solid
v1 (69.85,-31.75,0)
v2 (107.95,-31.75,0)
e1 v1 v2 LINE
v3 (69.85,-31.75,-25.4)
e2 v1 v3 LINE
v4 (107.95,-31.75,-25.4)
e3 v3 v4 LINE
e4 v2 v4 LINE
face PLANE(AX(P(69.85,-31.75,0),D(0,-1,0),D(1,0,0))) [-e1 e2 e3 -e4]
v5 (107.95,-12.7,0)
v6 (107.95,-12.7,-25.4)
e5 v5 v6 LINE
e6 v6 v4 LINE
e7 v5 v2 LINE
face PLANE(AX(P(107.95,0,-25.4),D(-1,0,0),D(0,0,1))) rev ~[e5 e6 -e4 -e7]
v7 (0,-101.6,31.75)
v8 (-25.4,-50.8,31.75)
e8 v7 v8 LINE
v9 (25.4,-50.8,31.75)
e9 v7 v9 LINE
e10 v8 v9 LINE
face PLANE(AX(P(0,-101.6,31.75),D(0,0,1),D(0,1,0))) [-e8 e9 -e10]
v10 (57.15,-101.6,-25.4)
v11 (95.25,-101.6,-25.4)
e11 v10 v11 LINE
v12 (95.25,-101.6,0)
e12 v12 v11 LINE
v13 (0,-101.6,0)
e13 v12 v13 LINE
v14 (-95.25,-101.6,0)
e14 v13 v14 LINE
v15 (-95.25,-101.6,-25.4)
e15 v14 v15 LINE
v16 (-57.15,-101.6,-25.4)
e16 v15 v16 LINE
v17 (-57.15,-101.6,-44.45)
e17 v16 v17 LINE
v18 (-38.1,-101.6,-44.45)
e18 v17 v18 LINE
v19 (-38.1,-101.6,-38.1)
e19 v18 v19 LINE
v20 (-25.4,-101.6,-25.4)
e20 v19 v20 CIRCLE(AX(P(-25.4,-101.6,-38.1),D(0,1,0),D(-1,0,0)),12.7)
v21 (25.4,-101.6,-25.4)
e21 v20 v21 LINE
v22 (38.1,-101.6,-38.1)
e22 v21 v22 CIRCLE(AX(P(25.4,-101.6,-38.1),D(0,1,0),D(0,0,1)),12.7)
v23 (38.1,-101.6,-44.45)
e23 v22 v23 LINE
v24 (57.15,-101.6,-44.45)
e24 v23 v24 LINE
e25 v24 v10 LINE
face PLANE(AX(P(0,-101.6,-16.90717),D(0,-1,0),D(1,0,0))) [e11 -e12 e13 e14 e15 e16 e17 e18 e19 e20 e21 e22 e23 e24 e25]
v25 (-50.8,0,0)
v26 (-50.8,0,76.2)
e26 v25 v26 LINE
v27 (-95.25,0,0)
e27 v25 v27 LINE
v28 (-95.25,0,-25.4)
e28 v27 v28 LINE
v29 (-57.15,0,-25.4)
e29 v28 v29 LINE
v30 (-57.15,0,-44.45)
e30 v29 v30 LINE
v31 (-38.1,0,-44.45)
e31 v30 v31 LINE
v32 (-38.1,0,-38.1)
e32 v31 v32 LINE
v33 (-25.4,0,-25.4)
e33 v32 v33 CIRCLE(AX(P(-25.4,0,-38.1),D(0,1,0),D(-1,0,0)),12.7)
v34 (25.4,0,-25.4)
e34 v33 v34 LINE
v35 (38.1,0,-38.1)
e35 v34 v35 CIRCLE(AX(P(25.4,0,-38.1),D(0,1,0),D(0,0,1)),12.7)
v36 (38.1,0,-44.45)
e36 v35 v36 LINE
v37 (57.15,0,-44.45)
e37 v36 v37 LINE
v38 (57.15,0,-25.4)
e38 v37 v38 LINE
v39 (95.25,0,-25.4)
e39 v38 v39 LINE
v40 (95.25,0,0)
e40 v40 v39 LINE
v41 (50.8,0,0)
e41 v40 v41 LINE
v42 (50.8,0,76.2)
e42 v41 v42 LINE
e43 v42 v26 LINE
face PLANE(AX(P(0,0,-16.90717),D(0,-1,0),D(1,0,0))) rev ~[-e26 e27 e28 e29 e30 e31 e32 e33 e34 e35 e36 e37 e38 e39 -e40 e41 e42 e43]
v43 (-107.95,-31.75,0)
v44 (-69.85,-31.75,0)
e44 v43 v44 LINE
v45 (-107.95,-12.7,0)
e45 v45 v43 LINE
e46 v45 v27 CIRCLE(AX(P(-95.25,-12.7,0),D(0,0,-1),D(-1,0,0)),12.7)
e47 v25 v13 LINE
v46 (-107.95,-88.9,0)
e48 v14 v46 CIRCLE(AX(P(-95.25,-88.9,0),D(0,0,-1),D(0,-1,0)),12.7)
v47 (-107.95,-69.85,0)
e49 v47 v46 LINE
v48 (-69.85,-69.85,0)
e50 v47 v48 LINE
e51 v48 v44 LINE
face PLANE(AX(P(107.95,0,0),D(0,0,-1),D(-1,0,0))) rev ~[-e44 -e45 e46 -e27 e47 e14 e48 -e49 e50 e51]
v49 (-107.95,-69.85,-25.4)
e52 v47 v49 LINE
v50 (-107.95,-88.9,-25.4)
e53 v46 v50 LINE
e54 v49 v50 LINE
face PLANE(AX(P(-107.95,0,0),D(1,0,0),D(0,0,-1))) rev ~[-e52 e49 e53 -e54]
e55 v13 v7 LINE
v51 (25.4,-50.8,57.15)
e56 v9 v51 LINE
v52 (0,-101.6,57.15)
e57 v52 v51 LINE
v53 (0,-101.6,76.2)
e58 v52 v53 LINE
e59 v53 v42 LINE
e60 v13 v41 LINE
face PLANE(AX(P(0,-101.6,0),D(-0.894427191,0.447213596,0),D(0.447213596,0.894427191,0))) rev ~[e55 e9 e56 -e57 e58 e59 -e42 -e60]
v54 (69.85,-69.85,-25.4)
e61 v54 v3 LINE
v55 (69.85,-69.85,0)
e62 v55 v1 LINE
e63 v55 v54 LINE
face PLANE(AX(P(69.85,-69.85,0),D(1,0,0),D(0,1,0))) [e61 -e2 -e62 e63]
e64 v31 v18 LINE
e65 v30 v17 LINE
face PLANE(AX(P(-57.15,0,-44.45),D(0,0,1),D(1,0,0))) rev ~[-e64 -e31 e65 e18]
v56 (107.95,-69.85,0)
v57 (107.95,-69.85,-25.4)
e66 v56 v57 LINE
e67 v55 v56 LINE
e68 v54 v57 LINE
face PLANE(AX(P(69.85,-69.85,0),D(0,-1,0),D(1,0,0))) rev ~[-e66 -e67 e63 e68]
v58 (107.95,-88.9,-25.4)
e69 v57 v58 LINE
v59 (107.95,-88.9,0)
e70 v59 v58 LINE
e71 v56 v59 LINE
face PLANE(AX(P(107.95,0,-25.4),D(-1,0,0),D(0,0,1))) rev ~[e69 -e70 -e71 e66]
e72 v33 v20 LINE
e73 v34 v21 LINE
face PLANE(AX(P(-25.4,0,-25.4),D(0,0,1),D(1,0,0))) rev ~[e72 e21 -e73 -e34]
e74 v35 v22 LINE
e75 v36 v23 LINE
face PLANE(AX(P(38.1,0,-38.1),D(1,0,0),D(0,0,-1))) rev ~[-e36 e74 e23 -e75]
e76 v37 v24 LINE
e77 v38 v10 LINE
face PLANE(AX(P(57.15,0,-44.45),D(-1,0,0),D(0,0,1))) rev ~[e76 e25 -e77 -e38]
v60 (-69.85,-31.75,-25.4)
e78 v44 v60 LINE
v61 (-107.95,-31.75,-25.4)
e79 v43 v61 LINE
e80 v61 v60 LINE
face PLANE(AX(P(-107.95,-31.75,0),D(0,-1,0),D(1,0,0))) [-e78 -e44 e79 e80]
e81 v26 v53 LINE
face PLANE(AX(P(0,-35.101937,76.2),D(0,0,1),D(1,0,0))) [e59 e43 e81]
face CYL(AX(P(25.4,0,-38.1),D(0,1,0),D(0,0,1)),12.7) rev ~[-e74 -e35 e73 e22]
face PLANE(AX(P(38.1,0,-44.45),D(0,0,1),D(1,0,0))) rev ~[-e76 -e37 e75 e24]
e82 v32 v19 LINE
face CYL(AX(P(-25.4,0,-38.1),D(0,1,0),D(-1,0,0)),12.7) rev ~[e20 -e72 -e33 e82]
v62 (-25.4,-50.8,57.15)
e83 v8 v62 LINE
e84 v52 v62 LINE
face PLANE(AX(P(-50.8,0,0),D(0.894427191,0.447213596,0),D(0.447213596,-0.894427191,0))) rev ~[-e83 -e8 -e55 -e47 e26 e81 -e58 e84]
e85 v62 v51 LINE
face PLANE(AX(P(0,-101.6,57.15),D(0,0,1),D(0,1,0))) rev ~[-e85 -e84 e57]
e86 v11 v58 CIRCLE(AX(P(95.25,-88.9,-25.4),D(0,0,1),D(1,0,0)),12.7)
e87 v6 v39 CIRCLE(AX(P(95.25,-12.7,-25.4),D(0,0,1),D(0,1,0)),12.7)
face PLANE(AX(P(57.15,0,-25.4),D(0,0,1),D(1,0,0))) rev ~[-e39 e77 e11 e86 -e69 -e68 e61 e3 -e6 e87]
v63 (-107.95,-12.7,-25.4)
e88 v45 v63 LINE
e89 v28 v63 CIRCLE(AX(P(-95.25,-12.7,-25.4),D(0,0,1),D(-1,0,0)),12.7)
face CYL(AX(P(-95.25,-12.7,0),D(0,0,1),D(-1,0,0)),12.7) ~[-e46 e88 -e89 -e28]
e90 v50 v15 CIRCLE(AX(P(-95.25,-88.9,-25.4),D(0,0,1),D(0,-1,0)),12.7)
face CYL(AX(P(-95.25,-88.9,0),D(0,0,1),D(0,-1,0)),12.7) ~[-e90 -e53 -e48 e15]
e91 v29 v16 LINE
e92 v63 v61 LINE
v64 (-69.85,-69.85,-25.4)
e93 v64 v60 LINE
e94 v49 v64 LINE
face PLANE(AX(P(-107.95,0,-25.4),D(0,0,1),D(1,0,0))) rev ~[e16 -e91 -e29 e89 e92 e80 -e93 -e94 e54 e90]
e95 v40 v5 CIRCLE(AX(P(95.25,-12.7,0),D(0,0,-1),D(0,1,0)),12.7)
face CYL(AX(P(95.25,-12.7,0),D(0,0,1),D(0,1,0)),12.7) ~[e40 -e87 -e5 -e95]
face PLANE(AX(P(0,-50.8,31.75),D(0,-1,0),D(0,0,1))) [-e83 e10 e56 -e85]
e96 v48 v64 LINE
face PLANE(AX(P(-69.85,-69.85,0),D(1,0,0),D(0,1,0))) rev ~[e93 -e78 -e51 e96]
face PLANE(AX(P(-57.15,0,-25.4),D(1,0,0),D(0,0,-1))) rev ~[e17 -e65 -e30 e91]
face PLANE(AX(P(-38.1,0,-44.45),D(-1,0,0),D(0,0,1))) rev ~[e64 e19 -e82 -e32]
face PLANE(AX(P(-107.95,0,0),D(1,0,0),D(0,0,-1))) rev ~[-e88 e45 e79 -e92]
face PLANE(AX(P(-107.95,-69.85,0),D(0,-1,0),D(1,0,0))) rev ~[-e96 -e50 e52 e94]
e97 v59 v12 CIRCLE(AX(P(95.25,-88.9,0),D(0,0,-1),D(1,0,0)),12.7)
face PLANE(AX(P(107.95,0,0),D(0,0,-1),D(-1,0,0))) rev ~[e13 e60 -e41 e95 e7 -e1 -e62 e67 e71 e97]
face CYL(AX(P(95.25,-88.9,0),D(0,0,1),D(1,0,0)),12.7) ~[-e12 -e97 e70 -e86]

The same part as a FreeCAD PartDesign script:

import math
import FreeCAD as App
import Part
import Sketcher
Q = App.Units.Quantity


def add_polygon(sketch, points):
    """Adds a closed chain of lines whose ends are joined by coincident constraints."""
    first, n = sketch.GeometryCount, len(points)
    for a, b in zip(points, points[1:] + points[:1]):
        sketch.addGeometry(Part.LineSegment(App.Vector(*a, 0), App.Vector(*b, 0)), False)
    for i in range(n):
        sketch.addConstraint(Sketcher.Constraint("Coincident", first + i, 2, first + (i + 1) % n, 1))

doc = App.newDocument("Part")
body = doc.addObject("PartDesign::Body", "Body")

sketch1 = doc.addObject("Sketcher::SketchObject", "Sketch")
body.addObject(sketch1)
sketch1.AttachmentSupport = (doc.XZ_Plane, [""])
sketch1.MapMode = "FlatFace"
sketch1.addGeometry([
    Part.LineSegment(App.Vector(108, 0, 0), App.Vector(-108, 0, 0)),
    Part.LineSegment(App.Vector(-108, 0, 0), App.Vector(-108, -25, 0)),
    Part.LineSegment(App.Vector(-108, -25, 0), App.Vector(-57, -25, 0)),
    Part.LineSegment(App.Vector(-57, -25, 0), App.Vector(-57, -44, 0)),
    Part.LineSegment(App.Vector(-57, -44, 0), App.Vector(-38, -44, 0)),
    Part.LineSegment(App.Vector(-38, -44, 0), App.Vector(-38, -38, 0)),
    Part.ArcOfCircle(Part.Circle(App.Vector(-25, -38, 0), App.Vector(0, 0, 1), 13), math.radians(90), math.radians(180)),
    Part.LineSegment(App.Vector(-25, -25, 0), App.Vector(25, -25, 0)),
    Part.ArcOfCircle(Part.Circle(App.Vector(25, -38, 0), App.Vector(0, 0, 1), 13), math.radians(0), math.radians(90)),
    Part.LineSegment(App.Vector(38, -38, 0), App.Vector(38, -44, 0)),
    Part.LineSegment(App.Vector(38, -44, 0), App.Vector(57, -44, 0)),
    Part.LineSegment(App.Vector(57, -44, 0), App.Vector(57, -25, 0)),
    Part.LineSegment(App.Vector(57, -25, 0), App.Vector(108, -25, 0)),
    Part.LineSegment(App.Vector(108, -25, 0), App.Vector(108, 0, 0)),
], False)
sketch1.addConstraint([
    Sketcher.Constraint("Coincident", 0, 2, 1, 1),
    Sketcher.Constraint("Coincident", 1, 2, 2, 1),
    Sketcher.Constraint("Coincident", 2, 2, 3, 1),
    Sketcher.Constraint("Coincident", 3, 2, 4, 1),
    Sketcher.Constraint("Coincident", 4, 2, 5, 1),
    Sketcher.Constraint("Tangent", 5, 2, 6, 2),
    Sketcher.Constraint("Tangent", 6, 1, 7, 1),
    Sketcher.Constraint("Tangent", 7, 2, 8, 2),
    Sketcher.Constraint("Tangent", 8, 1, 9, 1),
    Sketcher.Constraint("Coincident", 9, 2, 10, 1),
    Sketcher.Constraint("Coincident", 10, 2, 11, 1),
    Sketcher.Constraint("Coincident", 11, 2, 12, 1),
    Sketcher.Constraint("Coincident", 12, 2, 13, 1),
    Sketcher.Constraint("Coincident", 13, 2, 0, 1),
    Sketcher.Constraint("Horizontal", 0),
    Sketcher.Constraint("Vertical", 1),
    Sketcher.Constraint("Horizontal", 2),
    Sketcher.Constraint("Vertical", 3),
    Sketcher.Constraint("Horizontal", 4),
    Sketcher.Constraint("Vertical", 5),
    Sketcher.Constraint("Horizontal", 7),
    Sketcher.Constraint("Vertical", 9),
    Sketcher.Constraint("Horizontal", 10),
    Sketcher.Constraint("Vertical", 11),
    Sketcher.Constraint("Horizontal", 12),
    Sketcher.Constraint("Vertical", 13),
    Sketcher.Constraint("Equal", 6, 8),
    Sketcher.Constraint("Symmetric", 0, 2, 13, 2, -1, 1),
    Sketcher.Constraint("Symmetric", 4, 2, 9, 2, -2),
    Sketcher.Constraint("Symmetric", 2, 2, 11, 2, -2),
    Sketcher.Constraint("Horizontal", 2, 2, 6, 1),
    Sketcher.Constraint("Equal", 2, 7),
    Sketcher.Constraint("Equal", 10, 3),
    Sketcher.Constraint("Radius", 6, Q("0.5 in")),
    Sketcher.Constraint("DistanceX", 2, 1, 2, 2, Q("2 in")),
    Sketcher.Constraint("DistanceY", 1, 2, 1, 1, Q("1 in")),
    Sketcher.Constraint("DistanceX", 0, 2, 0, 1, Q("8.5 in")),
])
pad1 = doc.addObject("PartDesign::Pad", "Pad")
body.addObject(pad1)
pad1.Profile = sketch1
pad1.Length = Q("4 in")

sketch2 = doc.addObject("Sketcher::SketchObject", "Sketch001")
body.addObject(sketch2)
sketch2.AttachmentSupport = (doc.XY_Plane, [""])
sketch2.MapMode = "FlatFace"
sketch2.addGeometry(Part.ArcOfCircle(Part.Circle(App.Vector(-95, -13, 0), App.Vector(0, 0, 1), 13), math.radians(90), math.radians(180)), False)
sketch2.addGeometry(Part.LineSegment(App.Vector(-95, 0, 0), App.Vector(-108, 0, 0)), False)
sketch2.addGeometry(Part.LineSegment(App.Vector(-108, 0, 0), App.Vector(-108, -13, 0)), False)
sketch2.addGeometry(Part.ArcOfCircle(Part.Circle(App.Vector(-95, -89, 0), App.Vector(0, 0, 1), 13), math.radians(180), math.radians(270)), False)
sketch2.addGeometry(Part.LineSegment(App.Vector(-108, -89, 0), App.Vector(-108, -102, 0)), False)
sketch2.addGeometry(Part.LineSegment(App.Vector(-108, -102, 0), App.Vector(-95, -102, 0)), False)
sketch2.addGeometry(Part.ArcOfCircle(Part.Circle(App.Vector(95, -89, 0), App.Vector(0, 0, 1), 13), math.radians(-90), math.radians(0)), False)
sketch2.addGeometry(Part.LineSegment(App.Vector(95, -102, 0), App.Vector(108, -102, 0)), False)
sketch2.addGeometry(Part.LineSegment(App.Vector(108, -102, 0), App.Vector(108, -89, 0)), False)
sketch2.addGeometry(Part.ArcOfCircle(Part.Circle(App.Vector(95, -13, 0), App.Vector(0, 0, 1), 13), math.radians(0), math.radians(90)), False)
sketch2.addGeometry(Part.LineSegment(App.Vector(108, -13, 0), App.Vector(108, 0, 0)), False)
sketch2.addGeometry(Part.LineSegment(App.Vector(108, 0, 0), App.Vector(95, 0, 0)), False)
add_polygon(sketch2, [(-108, -32), (-108, -70), (-70, -70), (-70, -32)])
add_polygon(sketch2, [(70, -32), (70, -70), (108, -70), (108, -32)])
sketch2.addConstraint([
    Sketcher.Constraint("Tangent", 0, 1, 1, 1),
    Sketcher.Constraint("Coincident", 1, 2, 2, 1),
    Sketcher.Constraint("Tangent", 2, 2, 0, 2),
    Sketcher.Constraint("Tangent", 3, 1, 4, 1),
    Sketcher.Constraint("Coincident", 4, 2, 5, 1),
    Sketcher.Constraint("Tangent", 5, 2, 3, 2),
    Sketcher.Constraint("Tangent", 6, 1, 7, 1),
    Sketcher.Constraint("Coincident", 7, 2, 8, 1),
    Sketcher.Constraint("Tangent", 8, 2, 6, 2),
    Sketcher.Constraint("Tangent", 9, 1, 10, 1),
    Sketcher.Constraint("Coincident", 10, 2, 11, 1),
    Sketcher.Constraint("Tangent", 11, 2, 9, 2),
    Sketcher.Constraint("Horizontal", 1),
    Sketcher.Constraint("Vertical", 2),
    Sketcher.Constraint("Vertical", 4),
    Sketcher.Constraint("Horizontal", 5),
    Sketcher.Constraint("Horizontal", 7),
    Sketcher.Constraint("Vertical", 8),
    Sketcher.Constraint("Vertical", 10),
    Sketcher.Constraint("Horizontal", 11),
    Sketcher.Constraint("Vertical", 12),
    Sketcher.Constraint("Horizontal", 13),
    Sketcher.Constraint("Vertical", 14),
    Sketcher.Constraint("Horizontal", 15),
    Sketcher.Constraint("Vertical", 16),
    Sketcher.Constraint("Horizontal", 17),
    Sketcher.Constraint("Vertical", 18),
    Sketcher.Constraint("Horizontal", 19),
    Sketcher.Constraint("Equal", 0, 3),
    Sketcher.Constraint("Equal", 3, 6),
    Sketcher.Constraint("Equal", 6, 9),
    Sketcher.Constraint("Symmetric", 1, 2, 10, 2, -1, 1),
    Sketcher.Constraint("Symmetric", 3, 3, 6, 3, -2),
    Sketcher.Constraint("Symmetric", 13, 2, 16, 2, -2),
    Sketcher.Constraint("Symmetric", 15, 2, 18, 2, -2),
    Sketcher.Constraint("PointOnObject", 0, 1, -1),
    Sketcher.Constraint("Vertical", 0, 3, 3, 3),
    Sketcher.Constraint("Vertical", 4, 2, 12, 2),
    Sketcher.Constraint("Equal", 19, 12),
    Sketcher.Constraint("Radius", 0, Q("0.5 in")),
    Sketcher.Constraint("DistanceX", 13, 1, 13, 2, Q("1.5 in")),
    Sketcher.Constraint("DistanceY", 4, 2, -1, 1, Q("4 in")),
    Sketcher.Constraint("DistanceX", 1, 2, 9, 3, Q("8 in")),
    Sketcher.Constraint("DistanceY", 12, 2, -1, 1, Q("2.75 in")),
])
pocket1 = doc.addObject("PartDesign::Pocket", "Pocket")
body.addObject(pocket1)
pocket1.Profile = sketch2
pocket1.Type = "ThroughAll"

sketch3 = doc.addObject("Sketcher::SketchObject", "Sketch002")
body.addObject(sketch3)
sketch3.AttachmentSupport = (doc.XY_Plane, [""])
sketch3.MapMode = "FlatFace"
add_polygon(sketch3, [(-51, 0), (0, -102), (51, 0)])
sketch3.addConstraint([
    Sketcher.Constraint("Horizontal", 2),
    Sketcher.Constraint("Symmetric", 1, 2, 2, 2, -1, 1),
    Sketcher.Constraint("PointOnObject", 0, 2, -2),
    Sketcher.Constraint("DistanceX", 2, 2, 2, 1, Q("4 in")),
    Sketcher.Constraint("DistanceY", 0, 2, -1, 1, Q("4 in")),
])
pad2 = doc.addObject("PartDesign::Pad", "Pad001")
body.addObject(pad2)
pad2.Profile = sketch3
pad2.Length = Q("3 in")

sketch4 = doc.addObject("Sketcher::SketchObject", "Sketch003")
body.addObject(sketch4)
sketch4.AttachmentSupport = (doc.YZ_Plane, [""])
sketch4.MapMode = "FlatFace"
add_polygon(sketch4, [(-102, 57), (-102, 32), (-51, 32), (-51, 57)])
sketch4.addConstraint([
    Sketcher.Constraint("Vertical", 0),
    Sketcher.Constraint("Horizontal", 1),
    Sketcher.Constraint("Vertical", 2),
    Sketcher.Constraint("Horizontal", 3),
    Sketcher.Constraint("DistanceX", 1, 1, 1, 2, Q("2 in")),
    Sketcher.Constraint("DistanceY", 0, 2, 0, 1, Q("1 in")),
    Sketcher.Constraint("DistanceX", 0, 2, -1, 1, Q("4 in")),
    Sketcher.Constraint("DistanceY", -1, 1, 0, 2, Q("1.25 in")),
])
pocket2 = doc.addObject("PartDesign::Pocket", "Pocket001")
body.addObject(pocket2)
pocket2.Profile = sketch4
pocket2.Type = "ThroughAll"
pocket2.Midplane = True

doc.recompute()
